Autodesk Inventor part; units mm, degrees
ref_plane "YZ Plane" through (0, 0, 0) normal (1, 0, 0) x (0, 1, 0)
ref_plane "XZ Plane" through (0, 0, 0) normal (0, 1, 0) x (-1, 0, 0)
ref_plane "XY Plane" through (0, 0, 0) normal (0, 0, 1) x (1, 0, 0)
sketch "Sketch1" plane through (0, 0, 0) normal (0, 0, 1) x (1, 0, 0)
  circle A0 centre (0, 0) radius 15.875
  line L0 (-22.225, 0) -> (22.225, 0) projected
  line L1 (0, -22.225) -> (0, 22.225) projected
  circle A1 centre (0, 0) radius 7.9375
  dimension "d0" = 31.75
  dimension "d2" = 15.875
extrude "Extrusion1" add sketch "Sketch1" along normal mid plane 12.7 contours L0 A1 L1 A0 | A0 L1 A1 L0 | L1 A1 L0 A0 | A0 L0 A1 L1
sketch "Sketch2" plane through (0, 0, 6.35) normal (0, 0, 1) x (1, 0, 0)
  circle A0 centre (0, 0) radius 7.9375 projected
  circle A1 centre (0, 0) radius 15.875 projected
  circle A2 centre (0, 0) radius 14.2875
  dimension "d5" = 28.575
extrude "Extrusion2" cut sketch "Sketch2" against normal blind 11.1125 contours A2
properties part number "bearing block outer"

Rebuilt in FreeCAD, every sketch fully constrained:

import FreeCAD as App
import Part
import Sketcher
Q = App.Units.Quantity

doc = App.newDocument("Part")
body = doc.addObject("PartDesign::Body", "Body")

sketch1 = doc.addObject("Sketcher::SketchObject", "Sketch")
body.addObject(sketch1)
sketch1.AttachmentSupport = (doc.XY_Plane, [""])
sketch1.MapMode = "FlatFace"
sketch1.addGeometry([
    Part.Circle(App.Vector(0, 0, 0), App.Vector(0, 0, 1), 15.875),
    Part.Circle(App.Vector(0, 0, 0), App.Vector(0, 0, 1), 7.9375),
], False)
sketch1.addConstraint([
    Sketcher.Constraint("Coincident", 0, 3, -1, 1),
    Sketcher.Constraint("Coincident", 1, 3, -1, 1),
    Sketcher.Constraint("Diameter", 0, Q("1.25 in")),
    Sketcher.Constraint("Diameter", 1, Q("0.625 in")),
])
pad1 = doc.addObject("PartDesign::Pad", "Pad")
body.addObject(pad1)
pad1.Profile = sketch1
pad1.Length = Q("0.5 in")
pad1.Midplane = True

sketch2 = doc.addObject("Sketcher::SketchObject", "Sketch001")
body.addObject(sketch2)
sketch2.AttachmentSupport = (doc.XY_Plane, [""])
sketch2.MapMode = "FlatFace"
sketch2.AttachmentOffset = App.Placement(App.Vector(0, 0, 0.25 * 25.4), App.Rotation())
sketch2.addGeometry([
    Part.Circle(App.Vector(0, 0, 0), App.Vector(0, 0, 1), 14.2875),
    Part.Circle(App.Vector(0, 0, 0), App.Vector(0, 0, 1), 7.9375),
], False)
sketch2.addConstraint([
    Sketcher.Constraint("Coincident", 0, 3, -1, 1),
    Sketcher.Constraint("Coincident", 1, 3, -1, 1),
    Sketcher.Constraint("Diameter", 0, Q("1.125 in")),
    Sketcher.Constraint("Diameter", 1, Q("0.625 in")),
])
pocket1 = doc.addObject("PartDesign::Pocket", "Pocket")
body.addObject(pocket1)
pocket1.Profile = sketch2
pocket1.Length = Q("0.4375 in")

doc.recompute()
